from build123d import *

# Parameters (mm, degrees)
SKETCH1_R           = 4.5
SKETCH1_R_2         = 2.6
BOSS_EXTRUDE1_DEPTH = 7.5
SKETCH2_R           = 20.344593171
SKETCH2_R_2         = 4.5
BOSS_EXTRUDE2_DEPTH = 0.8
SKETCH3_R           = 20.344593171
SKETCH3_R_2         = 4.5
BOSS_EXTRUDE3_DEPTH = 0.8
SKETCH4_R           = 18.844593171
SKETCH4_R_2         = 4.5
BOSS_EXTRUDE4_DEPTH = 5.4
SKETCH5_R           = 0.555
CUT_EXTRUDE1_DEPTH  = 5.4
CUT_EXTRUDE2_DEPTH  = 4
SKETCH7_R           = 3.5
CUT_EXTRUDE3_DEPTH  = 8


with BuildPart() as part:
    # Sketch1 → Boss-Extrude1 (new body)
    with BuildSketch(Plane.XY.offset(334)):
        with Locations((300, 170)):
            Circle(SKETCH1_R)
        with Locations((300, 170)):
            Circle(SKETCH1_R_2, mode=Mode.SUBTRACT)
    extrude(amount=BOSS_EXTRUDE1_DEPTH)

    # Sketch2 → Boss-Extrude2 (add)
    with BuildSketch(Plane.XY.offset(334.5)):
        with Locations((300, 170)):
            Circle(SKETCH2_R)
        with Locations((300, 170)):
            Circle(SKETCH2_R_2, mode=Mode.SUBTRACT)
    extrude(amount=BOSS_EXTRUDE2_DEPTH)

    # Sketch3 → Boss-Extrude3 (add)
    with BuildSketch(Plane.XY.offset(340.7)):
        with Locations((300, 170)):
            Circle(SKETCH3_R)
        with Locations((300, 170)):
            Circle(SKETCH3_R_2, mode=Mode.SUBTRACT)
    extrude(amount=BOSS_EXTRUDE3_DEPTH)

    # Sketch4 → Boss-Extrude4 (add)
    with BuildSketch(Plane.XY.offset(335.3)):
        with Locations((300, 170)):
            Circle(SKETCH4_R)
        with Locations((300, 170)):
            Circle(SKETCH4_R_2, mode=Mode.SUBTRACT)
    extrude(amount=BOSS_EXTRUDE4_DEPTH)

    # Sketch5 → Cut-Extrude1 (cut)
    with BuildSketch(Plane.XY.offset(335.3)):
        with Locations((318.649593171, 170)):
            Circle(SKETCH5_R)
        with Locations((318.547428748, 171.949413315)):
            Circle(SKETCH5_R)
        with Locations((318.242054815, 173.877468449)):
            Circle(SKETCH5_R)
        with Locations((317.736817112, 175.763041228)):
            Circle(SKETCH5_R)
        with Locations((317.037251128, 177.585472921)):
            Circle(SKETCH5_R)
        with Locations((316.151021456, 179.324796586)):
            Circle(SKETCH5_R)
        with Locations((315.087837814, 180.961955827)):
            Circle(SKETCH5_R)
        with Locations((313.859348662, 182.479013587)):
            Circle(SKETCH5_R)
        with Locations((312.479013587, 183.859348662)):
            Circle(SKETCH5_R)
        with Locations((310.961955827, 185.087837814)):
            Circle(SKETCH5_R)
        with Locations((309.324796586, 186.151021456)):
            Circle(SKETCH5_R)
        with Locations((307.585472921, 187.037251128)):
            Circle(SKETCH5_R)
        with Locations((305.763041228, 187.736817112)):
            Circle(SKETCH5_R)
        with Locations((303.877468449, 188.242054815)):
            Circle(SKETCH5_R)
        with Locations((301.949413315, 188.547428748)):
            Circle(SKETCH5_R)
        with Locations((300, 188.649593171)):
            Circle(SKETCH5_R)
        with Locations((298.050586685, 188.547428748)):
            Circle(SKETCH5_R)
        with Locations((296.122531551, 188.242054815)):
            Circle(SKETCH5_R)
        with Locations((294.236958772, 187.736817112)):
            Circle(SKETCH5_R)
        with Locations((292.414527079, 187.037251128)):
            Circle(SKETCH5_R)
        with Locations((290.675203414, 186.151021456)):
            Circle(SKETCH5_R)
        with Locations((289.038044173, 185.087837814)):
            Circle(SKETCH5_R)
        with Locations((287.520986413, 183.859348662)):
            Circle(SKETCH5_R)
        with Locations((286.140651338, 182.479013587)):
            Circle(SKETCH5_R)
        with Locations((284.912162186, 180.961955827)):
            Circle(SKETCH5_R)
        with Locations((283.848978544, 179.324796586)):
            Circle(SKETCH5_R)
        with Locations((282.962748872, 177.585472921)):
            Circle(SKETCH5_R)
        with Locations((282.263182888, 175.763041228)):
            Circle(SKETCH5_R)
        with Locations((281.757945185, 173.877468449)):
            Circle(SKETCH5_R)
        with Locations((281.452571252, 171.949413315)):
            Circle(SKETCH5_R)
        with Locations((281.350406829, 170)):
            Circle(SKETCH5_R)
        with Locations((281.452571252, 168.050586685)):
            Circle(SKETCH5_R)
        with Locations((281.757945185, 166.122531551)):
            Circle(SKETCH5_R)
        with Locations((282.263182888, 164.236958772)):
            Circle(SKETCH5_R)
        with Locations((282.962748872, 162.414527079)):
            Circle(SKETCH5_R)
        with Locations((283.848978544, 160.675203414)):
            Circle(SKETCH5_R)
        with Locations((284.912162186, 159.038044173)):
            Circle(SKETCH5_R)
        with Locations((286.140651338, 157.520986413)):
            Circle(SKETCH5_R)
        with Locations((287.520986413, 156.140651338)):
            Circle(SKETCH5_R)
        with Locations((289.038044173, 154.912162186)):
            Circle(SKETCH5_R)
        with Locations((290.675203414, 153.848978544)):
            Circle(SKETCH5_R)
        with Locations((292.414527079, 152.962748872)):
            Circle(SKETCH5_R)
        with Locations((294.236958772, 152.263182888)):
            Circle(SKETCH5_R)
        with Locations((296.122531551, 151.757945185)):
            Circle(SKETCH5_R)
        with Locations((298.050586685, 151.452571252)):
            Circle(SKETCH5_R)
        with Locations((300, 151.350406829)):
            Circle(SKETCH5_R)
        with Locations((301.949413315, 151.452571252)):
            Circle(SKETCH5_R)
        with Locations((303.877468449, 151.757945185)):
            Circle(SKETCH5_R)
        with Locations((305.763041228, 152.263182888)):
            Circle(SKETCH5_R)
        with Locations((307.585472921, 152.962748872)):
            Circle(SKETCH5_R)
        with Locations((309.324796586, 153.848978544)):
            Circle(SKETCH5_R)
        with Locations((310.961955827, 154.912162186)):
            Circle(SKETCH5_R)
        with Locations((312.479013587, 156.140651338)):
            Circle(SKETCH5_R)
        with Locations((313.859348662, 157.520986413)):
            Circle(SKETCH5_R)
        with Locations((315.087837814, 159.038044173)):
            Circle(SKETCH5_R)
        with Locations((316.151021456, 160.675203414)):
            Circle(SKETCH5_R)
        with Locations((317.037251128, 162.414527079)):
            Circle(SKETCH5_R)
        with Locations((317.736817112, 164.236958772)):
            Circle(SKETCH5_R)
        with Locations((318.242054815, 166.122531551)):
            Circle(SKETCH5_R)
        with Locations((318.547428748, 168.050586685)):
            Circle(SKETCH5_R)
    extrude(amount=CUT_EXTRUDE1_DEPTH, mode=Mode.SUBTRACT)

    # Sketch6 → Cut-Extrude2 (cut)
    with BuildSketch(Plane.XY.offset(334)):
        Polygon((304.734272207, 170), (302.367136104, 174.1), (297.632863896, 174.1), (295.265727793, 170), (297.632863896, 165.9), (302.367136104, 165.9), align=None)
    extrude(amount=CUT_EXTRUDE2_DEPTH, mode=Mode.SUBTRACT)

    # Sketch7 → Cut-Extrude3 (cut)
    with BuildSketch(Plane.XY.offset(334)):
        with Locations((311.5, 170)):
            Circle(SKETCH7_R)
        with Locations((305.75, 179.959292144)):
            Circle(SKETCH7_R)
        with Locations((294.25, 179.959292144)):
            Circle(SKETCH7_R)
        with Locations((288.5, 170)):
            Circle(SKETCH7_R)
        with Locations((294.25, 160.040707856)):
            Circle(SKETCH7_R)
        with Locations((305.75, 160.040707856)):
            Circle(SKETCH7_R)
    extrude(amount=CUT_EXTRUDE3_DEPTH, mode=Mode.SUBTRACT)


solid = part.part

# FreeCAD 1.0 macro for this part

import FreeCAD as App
import Part
import Sketcher

V = App.Vector
Q = App.Units.Quantity

doc = App.newDocument("Part")
body = doc.addObject("PartDesign::Body", "Body")

sketch1 = doc.addObject("Sketcher::SketchObject", "Sketch")
body.addObject(sketch1)
sketch1.AttachmentSupport = (doc.XY_Plane, [""])
sketch1.MapMode = "FlatFace"
sketch1.AttachmentOffset = App.Placement(V(0, 0, 334), App.Rotation())
sketch1.addGeometry([
    Part.Circle(V(300, 170, 0), V(0, 0, 1), 4.5),
    Part.Circle(V(300, 170, 0), V(0, 0, 1), 2.6),
], False)
sketch1.addConstraint([
    Sketcher.Constraint("Coincident", 1, 3, 0, 3),
    Sketcher.Constraint("Diameter", 0, Q("9 mm")),
    Sketcher.Constraint("Diameter", 1, Q("5.2 mm")),
    Sketcher.Constraint("DistanceX", -1, 1, 0, 3, Q("300 mm")),
    Sketcher.Constraint("DistanceY", -1, 1, 0, 3, Q("170 mm")),
])
pad1 = doc.addObject("PartDesign::Pad", "Pad")
body.addObject(pad1)
pad1.Profile = sketch1
pad1.Length = 7.5

sketch2 = doc.addObject("Sketcher::SketchObject", "Sketch001")
body.addObject(sketch2)
sketch2.AttachmentSupport = (doc.XY_Plane, [""])
sketch2.MapMode = "FlatFace"
sketch2.AttachmentOffset = App.Placement(V(0, 0, 334.5), App.Rotation())
sketch2.addGeometry([
    Part.Circle(V(300, 170, 0), V(0, 0, 1), 20.3),
    Part.Circle(V(300, 170, 0), V(0, 0, 1), 4.5),
], False)
sketch2.addConstraint([
    Sketcher.Constraint("Coincident", 1, 3, 0, 3),
    Sketcher.Constraint("Diameter", 1, Q("9 mm")),
    Sketcher.Constraint("DistanceX", -1, 1, 0, 3, Q("300 mm")),
    Sketcher.Constraint("DistanceY", -1, 1, 0, 3, Q("170 mm")),
    Sketcher.Constraint("Diameter", 0, Q("40.689186 mm")),
])
pad2 = doc.addObject("PartDesign::Pad", "Pad001")
body.addObject(pad2)
pad2.Profile = sketch2
pad2.Length = 0.8

sketch3 = doc.addObject("Sketcher::SketchObject", "Sketch002")
body.addObject(sketch3)
sketch3.AttachmentSupport = (doc.XY_Plane, [""])
sketch3.MapMode = "FlatFace"
sketch3.AttachmentOffset = App.Placement(V(0, 0, 340.7), App.Rotation())
sketch3.addGeometry([
    Part.Circle(V(300, 170, 0), V(0, 0, 1), 20.3),
    Part.Circle(V(300, 170, 0), V(0, 0, 1), 4.5),
], False)
sketch3.addConstraint([
    Sketcher.Constraint("Coincident", 1, 3, 0, 3),
    Sketcher.Constraint("Diameter", 1, Q("9 mm")),
    Sketcher.Constraint("DistanceX", -1, 1, 0, 3, Q("300 mm")),
    Sketcher.Constraint("DistanceY", -1, 1, 0, 3, Q("170 mm")),
    Sketcher.Constraint("Diameter", 0, Q("40.689186 mm")),
])
pad3 = doc.addObject("PartDesign::Pad", "Pad002")
body.addObject(pad3)
pad3.Profile = sketch3
pad3.Length = 0.8

sketch4 = doc.addObject("Sketcher::SketchObject", "Sketch003")
body.addObject(sketch4)
sketch4.AttachmentSupport = (doc.XY_Plane, [""])
sketch4.MapMode = "FlatFace"
sketch4.AttachmentOffset = App.Placement(V(0, 0, 335.3), App.Rotation())
sketch4.addGeometry([
    Part.Circle(V(300, 170, 0), V(0, 0, 1), 18.8),
    Part.Circle(V(300, 170, 0), V(0, 0, 1), 4.5),
], False)
sketch4.addConstraint([
    Sketcher.Constraint("Coincident", 1, 3, 0, 3),
    Sketcher.Constraint("Diameter", 1, Q("9 mm")),
    Sketcher.Constraint("DistanceX", -1, 1, 0, 3, Q("300 mm")),
    Sketcher.Constraint("DistanceY", -1, 1, 0, 3, Q("170 mm")),
    Sketcher.Constraint("Diameter", 0, Q("37.689186 mm")),
])
pad4 = doc.addObject("PartDesign::Pad", "Pad003")
body.addObject(pad4)
pad4.Profile = sketch4
pad4.Length = 5.4

sketch5 = doc.addObject("Sketcher::SketchObject", "Sketch004")
body.addObject(sketch5)
sketch5.AttachmentSupport = (doc.XY_Plane, [""])
sketch5.MapMode = "FlatFace"
sketch5.AttachmentOffset = App.Placement(V(0, 0, 335.3), App.Rotation())
sketch5.addGeometry([
    Part.Circle(V(318.6, 170, 0), V(0, 0, 1), 0.6),
    Part.Circle(V(318.5, 171.9, 0), V(0, 0, 1), 0.6),
    Part.Circle(V(318.2, 173.9, 0), V(0, 0, 1), 0.6),
    Part.Circle(V(317.7, 175.8, 0), V(0, 0, 1), 0.6),
    Part.Circle(V(317, 177.6, 0), V(0, 0, 1), 0.6),
    Part.Circle(V(316.2, 179.3, 0), V(0, 0, 1), 0.6),
    Part.Circle(V(315.1, 181, 0), V(0, 0, 1), 0.6),
    Part.Circle(V(313.9, 182.5, 0), V(0, 0, 1), 0.6),
    Part.Circle(V(312.5, 183.9, 0), V(0, 0, 1), 0.6),
    Part.Circle(V(311, 185.1, 0), V(0, 0, 1), 0.6),
    Part.Circle(V(309.3, 186.2, 0), V(0, 0, 1), 0.6),
    Part.Circle(V(307.6, 187, 0), V(0, 0, 1), 0.6),
    Part.Circle(V(305.8, 187.7, 0), V(0, 0, 1), 0.6),
    Part.Circle(V(303.9, 188.2, 0), V(0, 0, 1), 0.6),
    Part.Circle(V(301.9, 188.5, 0), V(0, 0, 1), 0.6),
    Part.Circle(V(300, 188.6, 0), V(0, 0, 1), 0.6),
    Part.Circle(V(298.1, 188.5, 0), V(0, 0, 1), 0.6),
    Part.Circle(V(296.1, 188.2, 0), V(0, 0, 1), 0.6),
    Part.Circle(V(294.2, 187.7, 0), V(0, 0, 1), 0.6),
    Part.Circle(V(292.4, 187, 0), V(0, 0, 1), 0.6),
    Part.Circle(V(290.7, 186.2, 0), V(0, 0, 1), 0.6),
    Part.Circle(V(289, 185.1, 0), V(0, 0, 1), 0.6),
    Part.Circle(V(287.5, 183.9, 0), V(0, 0, 1), 0.6),
    Part.Circle(V(286.1, 182.5, 0), V(0, 0, 1), 0.6),
    Part.Circle(V(284.9, 181, 0), V(0, 0, 1), 0.6),
    Part.Circle(V(283.8, 179.3, 0), V(0, 0, 1), 0.6),
    Part.Circle(V(283, 177.6, 0), V(0, 0, 1), 0.6),
    Part.Circle(V(282.3, 175.8, 0), V(0, 0, 1), 0.6),
    Part.Circle(V(281.8, 173.9, 0), V(0, 0, 1), 0.6),
    Part.Circle(V(281.5, 171.9, 0), V(0, 0, 1), 0.6),
    Part.Circle(V(281.4, 170, 0), V(0, 0, 1), 0.6),
    Part.Circle(V(281.5, 168.1, 0), V(0, 0, 1), 0.6),
    Part.Circle(V(281.8, 166.1, 0), V(0, 0, 1), 0.6),
    Part.Circle(V(282.3, 164.2, 0), V(0, 0, 1), 0.6),
    Part.Circle(V(283, 162.4, 0), V(0, 0, 1), 0.6),
    Part.Circle(V(283.8, 160.7, 0), V(0, 0, 1), 0.6),
    Part.Circle(V(284.9, 159, 0), V(0, 0, 1), 0.6),
    Part.Circle(V(286.1, 157.5, 0), V(0, 0, 1), 0.6),
    Part.Circle(V(287.5, 156.1, 0), V(0, 0, 1), 0.6),
    Part.Circle(V(289, 154.9, 0), V(0, 0, 1), 0.6),
    Part.Circle(V(290.7, 153.8, 0), V(0, 0, 1), 0.6),
    Part.Circle(V(292.4, 153, 0), V(0, 0, 1), 0.6),
    Part.Circle(V(294.2, 152.3, 0), V(0, 0, 1), 0.6),
    Part.Circle(V(296.1, 151.8, 0), V(0, 0, 1), 0.6),
    Part.Circle(V(298.1, 151.5, 0), V(0, 0, 1), 0.6),
    Part.Circle(V(300, 151.4, 0), V(0, 0, 1), 0.6),
    Part.Circle(V(301.9, 151.5, 0), V(0, 0, 1), 0.6),
    Part.Circle(V(303.9, 151.8, 0), V(0, 0, 1), 0.6),
    Part.Circle(V(305.8, 152.3, 0), V(0, 0, 1), 0.6),
    Part.Circle(V(307.6, 153, 0), V(0, 0, 1), 0.6),
    Part.Circle(V(309.3, 153.8, 0), V(0, 0, 1), 0.6),
    Part.Circle(V(311, 154.9, 0), V(0, 0, 1), 0.6),
    Part.Circle(V(312.5, 156.1, 0), V(0, 0, 1), 0.6),
    Part.Circle(V(313.9, 157.5, 0), V(0, 0, 1), 0.6),
    Part.Circle(V(315.1, 159, 0), V(0, 0, 1), 0.6),
    Part.Circle(V(316.2, 160.7, 0), V(0, 0, 1), 0.6),
    Part.Circle(V(317, 162.4, 0), V(0, 0, 1), 0.6),
    Part.Circle(V(317.7, 164.2, 0), V(0, 0, 1), 0.6),
    Part.Circle(V(318.2, 166.1, 0), V(0, 0, 1), 0.6),
    Part.Circle(V(318.5, 168.1, 0), V(0, 0, 1), 0.6),
], False)
sketch5.addConstraint([
    Sketcher.Constraint("Equal", 0, 1),
    Sketcher.Constraint("Equal", 1, 2),
    Sketcher.Constraint("Equal", 2, 3),
    Sketcher.Constraint("Equal", 3, 4),
    Sketcher.Constraint("Equal", 4, 5),
    Sketcher.Constraint("Equal", 5, 6),
    Sketcher.Constraint("Equal", 6, 7),
    Sketcher.Constraint("Equal", 7, 8),
    Sketcher.Constraint("Equal", 8, 9),
    Sketcher.Constraint("Equal", 9, 10),
    Sketcher.Constraint("Equal", 10, 11),
    Sketcher.Constraint("Equal", 11, 12),
    Sketcher.Constraint("Equal", 12, 13),
    Sketcher.Constraint("Equal", 13, 14),
    Sketcher.Constraint("Equal", 14, 15),
    Sketcher.Constraint("Equal", 15, 16),
    Sketcher.Constraint("Equal", 16, 17),
    Sketcher.Constraint("Equal", 17, 18),
    Sketcher.Constraint("Equal", 18, 19),
    Sketcher.Constraint("Equal", 19, 20),
    Sketcher.Constraint("Equal", 20, 21),
    Sketcher.Constraint("Equal", 21, 22),
    Sketcher.Constraint("Equal", 22, 23),
    Sketcher.Constraint("Equal", 23, 24),
    Sketcher.Constraint("Equal", 24, 25),
    Sketcher.Constraint("Equal", 25, 26),
    Sketcher.Constraint("Equal", 26, 27),
    Sketcher.Constraint("Equal", 27, 28),
    Sketcher.Constraint("Equal", 28, 29),
    Sketcher.Constraint("Equal", 29, 30),
    Sketcher.Constraint("Equal", 30, 31),
    Sketcher.Constraint("Equal", 31, 32),
    Sketcher.Constraint("Equal", 32, 33),
    Sketcher.Constraint("Equal", 33, 34),
    Sketcher.Constraint("Equal", 34, 35),
    Sketcher.Constraint("Equal", 35, 36),
    Sketcher.Constraint("Equal", 36, 37),
    Sketcher.Constraint("Equal", 37, 38),
    Sketcher.Constraint("Equal", 38, 39),
    Sketcher.Constraint("Equal", 39, 40),
    Sketcher.Constraint("Equal", 40, 41),
    Sketcher.Constraint("Equal", 41, 42),
    Sketcher.Constraint("Equal", 42, 43),
    Sketcher.Constraint("Equal", 43, 44),
    Sketcher.Constraint("Equal", 44, 45),
    Sketcher.Constraint("Equal", 45, 46),
    Sketcher.Constraint("Equal", 46, 47),
    Sketcher.Constraint("Equal", 47, 48),
    Sketcher.Constraint("Equal", 48, 49),
    Sketcher.Constraint("Equal", 49, 50),
    Sketcher.Constraint("Equal", 50, 51),
    Sketcher.Constraint("Equal", 51, 52),
    Sketcher.Constraint("Equal", 52, 53),
    Sketcher.Constraint("Equal", 53, 54),
    Sketcher.Constraint("Equal", 54, 55),
    Sketcher.Constraint("Equal", 55, 56),
    Sketcher.Constraint("Equal", 56, 57),
    Sketcher.Constraint("Equal", 57, 58),
    Sketcher.Constraint("Equal", 58, 59),
    Sketcher.Constraint("Horizontal", 14, 3, 16, 3),
    Sketcher.Constraint("Horizontal", 13, 3, 17, 3),
    Sketcher.Constraint("Horizontal", 12, 3, 18, 3),
    Sketcher.Constraint("Horizontal", 11, 3, 19, 3),
    Sketcher.Constraint("Horizontal", 10, 3, 20, 3),
    Sketcher.Constraint("Horizontal", 9, 3, 21, 3),
    Sketcher.Constraint("Horizontal", 8, 3, 22, 3),
    Sketcher.Constraint("Horizontal", 7, 3, 23, 3),
    Sketcher.Constraint("Horizontal", 6, 3, 24, 3),
    Sketcher.Constraint("Horizontal", 5, 3, 25, 3),
    Sketcher.Constraint("Horizontal", 4, 3, 26, 3),
    Sketcher.Constraint("Horizontal", 3, 3, 27, 3),
    Sketcher.Constraint("Horizontal", 2, 3, 28, 3),
    Sketcher.Constraint("Horizontal", 1, 3, 29, 3),
    Sketcher.Constraint("Horizontal", 0, 3, 30, 3),
    Sketcher.Constraint("Horizontal", 44, 3, 46, 3),
    Sketcher.Constraint("Horizontal", 43, 3, 47, 3),
    Sketcher.Constraint("Horizontal", 42, 3, 48, 3),
    Sketcher.Constraint("Horizontal", 41, 3, 49, 3),
    Sketcher.Constraint("Horizontal", 40, 3, 50, 3),
    Sketcher.Constraint("Horizontal", 39, 3, 51, 3),
    Sketcher.Constraint("Horizontal", 38, 3, 52, 3),
    Sketcher.Constraint("Horizontal", 37, 3, 53, 3),
    Sketcher.Constraint("Horizontal", 36, 3, 54, 3),
    Sketcher.Constraint("Horizontal", 35, 3, 55, 3),
    Sketcher.Constraint("Horizontal", 34, 3, 56, 3),
    Sketcher.Constraint("Horizontal", 33, 3, 57, 3),
    Sketcher.Constraint("Horizontal", 32, 3, 58, 3),
    Sketcher.Constraint("Horizontal", 31, 3, 59, 3),
    Sketcher.Constraint("Vertical", 29, 3, 31, 3),
    Sketcher.Constraint("Vertical", 28, 3, 32, 3),
    Sketcher.Constraint("Vertical", 27, 3, 33, 3),
    Sketcher.Constraint("Vertical", 26, 3, 34, 3),
    Sketcher.Constraint("Vertical", 25, 3, 35, 3),
    Sketcher.Constraint("Vertical", 24, 3, 36, 3),
    Sketcher.Constraint("Vertical", 23, 3, 37, 3),
    Sketcher.Constraint("Vertical", 22, 3, 38, 3),
    Sketcher.Constraint("Vertical", 21, 3, 39, 3),
    Sketcher.Constraint("Vertical", 20, 3, 40, 3),
    Sketcher.Constraint("Vertical", 19, 3, 41, 3),
    Sketcher.Constraint("Vertical", 18, 3, 42, 3),
    Sketcher.Constraint("Vertical", 17, 3, 43, 3),
    Sketcher.Constraint("Vertical", 16, 3, 44, 3),
    Sketcher.Constraint("Vertical", 15, 3, 45, 3),
    Sketcher.Constraint("Vertical", 14, 3, 46, 3),
    Sketcher.Constraint("Vertical", 13, 3, 47, 3),
    Sketcher.Constraint("Vertical", 12, 3, 48, 3),
    Sketcher.Constraint("Vertical", 11, 3, 49, 3),
    Sketcher.Constraint("Vertical", 10, 3, 50, 3),
    Sketcher.Constraint("Vertical", 9, 3, 51, 3),
    Sketcher.Constraint("Vertical", 8, 3, 52, 3),
    Sketcher.Constraint("Vertical", 7, 3, 53, 3),
    Sketcher.Constraint("Vertical", 6, 3, 54, 3),
    Sketcher.Constraint("Vertical", 5, 3, 55, 3),
    Sketcher.Constraint("Vertical", 4, 3, 56, 3),
    Sketcher.Constraint("Vertical", 3, 3, 57, 3),
    Sketcher.Constraint("Vertical", 2, 3, 58, 3),
    Sketcher.Constraint("Vertical", 1, 3, 59, 3),
    Sketcher.Constraint("Diameter", 0, Q("1.11 mm")),
    Sketcher.Constraint("DistanceY", -1, 1, 0, 3, Q("170 mm")),
    Sketcher.Constraint("DistanceX", -1, 1, 15, 3, Q("300 mm")),
    Sketcher.Constraint("DistanceX", -1, 1, 1, 3, Q("318.547429 mm")),
    Sketcher.Constraint("DistanceY", -1, 1, 2, 3, Q("173.877468 mm")),
    Sketcher.Constraint("DistanceY", -1, 1, 3, 3, Q("175.763041 mm")),
    Sketcher.Constraint("DistanceX", -1, 1, 4, 3, Q("317.037251 mm")),
    Sketcher.Constraint("DistanceX", -1, 1, 5, 3, Q("316.151021 mm")),
    Sketcher.Constraint("DistanceX", -1, 1, 7, 3, Q("313.859349 mm")),
    Sketcher.Constraint("DistanceY", -1, 1, 8, 3, Q("183.859349 mm")),
    Sketcher.Constraint("DistanceY", -1, 1, 10, 3, Q("186.151021 mm")),
    Sketcher.Constraint("DistanceY", -1, 1, 11, 3, Q("187.037251 mm")),
    Sketcher.Constraint("DistanceX", -1, 1, 12, 3, Q("305.763041 mm")),
    Sketcher.Constraint("DistanceX", -1, 1, 13, 3, Q("303.877468 mm")),
    Sketcher.Constraint("DistanceY", -1, 1, 14, 3, Q("188.547429 mm")),
    Sketcher.Constraint("DistanceX", -1, 1, 17, 3, Q("296.122532 mm")),
    Sketcher.Constraint("DistanceX", -1, 1, 18, 3, Q("294.236959 mm")),
    Sketcher.Constraint("DistanceX", -1, 1, 23, 3, Q("286.140651 mm")),
    Sketcher.Constraint("DistanceX", -1, 1, 25, 3, Q("283.848979 mm")),
    Sketcher.Constraint("DistanceX", -1, 1, 26, 3, Q("282.962749 mm")),
    Sketcher.Constraint("DistanceX", -1, 1, 29, 3, Q("281.452571 mm")),
    Sketcher.Constraint("DistanceY", -1, 1, 32, 3, Q("166.122532 mm")),
    Sketcher.Constraint("DistanceY", -1, 1, 33, 3, Q("164.236959 mm")),
    Sketcher.Constraint("DistanceY", -1, 1, 38, 3, Q("156.140651 mm")),
    Sketcher.Constraint("DistanceY", -1, 1, 40, 3, Q("153.848979 mm")),
    Sketcher.Constraint("DistanceY", -1, 1, 41, 3, Q("152.962749 mm")),
    Sketcher.Constraint("DistanceY", -1, 1, 44, 3, Q("151.452571 mm")),
    Sketcher.Constraint("DistanceX", 2, 3, 0, 3, Q("0.407538 mm")),
    Sketcher.Constraint("DistanceX", 3, 3, 1, 3, Q("0.810612 mm")),
    Sketcher.Constraint("DistanceY", 3, 3, 4, 3, Q("1.822432 mm")),
    Sketcher.Constraint("DistanceY", 1, 3, 4, 3, Q("5.63606 mm")),
    Sketcher.Constraint("DistanceY", 2, 3, 5, 3, Q("5.447328 mm")),
    Sketcher.Constraint("DistanceX", 5, 3, 0, 3, Q("2.498572 mm")),
    Sketcher.Constraint("DistanceY", 5, 3, 6, 3, Q("1.637159 mm")),
    Sketcher.Constraint("DistanceX", 6, 3, 3, 3, Q("2.648979 mm")),
    Sketcher.Constraint("DistanceY", 4, 3, 7, 3, Q("4.893541 mm")),
    Sketcher.Constraint("DistanceY", 8, 3, 9, 3, Q("1.228489 mm")),
    Sketcher.Constraint("DistanceX", 9, 3, 6, 3, Q("4.125882 mm")),
    Sketcher.Constraint("DistanceX", 10, 3, 9, 3, Q("1.637159 mm")),
    Sketcher.Constraint("DistanceX", 11, 3, 8, 3, Q("4.893541 mm")),
    Sketcher.Constraint("DistanceX", 12, 3, 11, 3, Q("1.822432 mm")),
    Sketcher.Constraint("DistanceY", 9, 3, 12, 3, Q("2.648979 mm")),
    Sketcher.Constraint("DistanceX", 14, 3, 11, 3, Q("5.63606 mm")),
    Sketcher.Constraint("DistanceY", 13, 3, 15, 3, Q("0.407538 mm")),
    Sketcher.Constraint("DistanceY", 10, 3, 15, 3, Q("2.498572 mm")),
    Sketcher.Constraint("DistanceX", 16, 3, 13, 3, Q("5.826882 mm")),
    Sketcher.Constraint("DistanceX", 19, 3, 18, 3, Q("1.822432 mm")),
    Sketcher.Constraint("DistanceX", 20, 3, 17, 3, Q("5.447328 mm")),
    Sketcher.Constraint("DistanceX", 21, 3, 20, 3, Q("1.637159 mm")),
    Sketcher.Constraint("DistanceX", 22, 3, 19, 3, Q("4.893541 mm")),
    Sketcher.Constraint("DistanceX", 24, 3, 23, 3, Q("1.228489 mm")),
    Sketcher.Constraint("DistanceX", 27, 3, 24, 3, Q("2.648979 mm")),
    Sketcher.Constraint("DistanceX", 30, 3, 28, 3, Q("0.407538 mm")),
    Sketcher.Constraint("DistanceX", 30, 3, 25, 3, Q("2.498572 mm")),
    Sketcher.Constraint("DistanceY", 31, 3, 28, 3, Q("5.826882 mm")),
    Sketcher.Constraint("DistanceY", 34, 3, 33, 3, Q("1.822432 mm")),
    Sketcher.Constraint("DistanceY", 35, 3, 32, 3, Q("5.447328 mm")),
    Sketcher.Constraint("DistanceY", 36, 3, 35, 3, Q("1.637159 mm")),
    Sketcher.Constraint("DistanceY", 37, 3, 34, 3, Q("4.893541 mm")),
    Sketcher.Constraint("DistanceY", 39, 3, 38, 3, Q("1.228489 mm")),
    Sketcher.Constraint("DistanceY", 42, 3, 39, 3, Q("2.648979 mm")),
    Sketcher.Constraint("DistanceY", 45, 3, 43, 3, Q("0.407538 mm")),
    Sketcher.Constraint("DistanceY", 45, 3, 40, 3, Q("2.498572 mm")),
])
pocket1 = doc.addObject("PartDesign::Pocket", "Pocket")
body.addObject(pocket1)
pocket1.Profile = sketch5
pocket1.Length = 5.4
pocket1.Reversed = True

sketch6 = doc.addObject("Sketcher::SketchObject", "Sketch005")
body.addObject(sketch6)
sketch6.AttachmentSupport = (doc.XY_Plane, [""])
sketch6.MapMode = "FlatFace"
sketch6.AttachmentOffset = App.Placement(V(0, 0, 334), App.Rotation())
sketch6.addGeometry([
    Part.LineSegment(V(304.7, 170, 0), V(302.4, 174.1, 0)),
    Part.LineSegment(V(302.4, 174.1, 0), V(297.6, 174.1, 0)),
    Part.LineSegment(V(297.6, 174.1, 0), V(295.3, 170, 0)),
    Part.LineSegment(V(295.3, 170, 0), V(297.6, 165.9, 0)),
    Part.LineSegment(V(297.6, 165.9, 0), V(302.4, 165.9, 0)),
    Part.LineSegment(V(302.4, 165.9, 0), V(304.7, 170, 0)),
], False)
sketch6.addConstraint([
    Sketcher.Constraint("Coincident", 0, 2, 1, 1),
    Sketcher.Constraint("Coincident", 1, 2, 2, 1),
    Sketcher.Constraint("Coincident", 2, 2, 3, 1),
    Sketcher.Constraint("Coincident", 3, 2, 4, 1),
    Sketcher.Constraint("Coincident", 4, 2, 5, 1),
    Sketcher.Constraint("Coincident", 5, 2, 0, 1),
    Sketcher.Constraint("Horizontal", 1),
    Sketcher.Constraint("Horizontal", 4),
    Sketcher.Constraint("Parallel", 0, 3),
    Sketcher.Constraint("Parallel", 2, 5),
    Sketcher.Constraint("Horizontal", 2, 2, 5, 2),
    Sketcher.Constraint("Vertical", 1, 2, 3, 2),
    Sketcher.Constraint("Vertical", 0, 2, 4, 2),
    Sketcher.Constraint("Angle", 0, Q("120 deg")),
    Sketcher.Constraint("DistanceY", -1, 1, 2, 2, Q("170 mm")),
    Sketcher.Constraint("DistanceY", -1, 1, 0, 2, Q("174.1 mm")),
    Sketcher.Constraint("DistanceX", 1, 2, 1, 1, Q("4.734272 mm")),
    Sketcher.Constraint("DistanceX", -1, 1, 0, 2, Q("302.367136 mm")),
])
pocket2 = doc.addObject("PartDesign::Pocket", "Pocket001")
body.addObject(pocket2)
pocket2.Profile = sketch6
pocket2.Length = 4
pocket2.Reversed = True

sketch7 = doc.addObject("Sketcher::SketchObject", "Sketch006")
body.addObject(sketch7)
sketch7.AttachmentSupport = (doc.XY_Plane, [""])
sketch7.MapMode = "FlatFace"
sketch7.AttachmentOffset = App.Placement(V(0, 0, 334), App.Rotation())
sketch7.addGeometry([
    Part.Circle(V(311.5, 170, 0), V(0, 0, 1), 3.5),
    Part.Circle(V(305.8, 180, 0), V(0, 0, 1), 3.5),
    Part.Circle(V(294.2, 180, 0), V(0, 0, 1), 3.5),
    Part.Circle(V(288.5, 170, 0), V(0, 0, 1), 3.5),
    Part.Circle(V(294.2, 160, 0), V(0, 0, 1), 3.5),
    Part.Circle(V(305.8, 160, 0), V(0, 0, 1), 3.5),
], False)
sketch7.addConstraint([
    Sketcher.Constraint("Equal", 0, 1),
    Sketcher.Constraint("Equal", 1, 2),
    Sketcher.Constraint("Equal", 2, 3),
    Sketcher.Constraint("Equal", 3, 4),
    Sketcher.Constraint("Equal", 4, 5),
    Sketcher.Constraint("Horizontal", 1, 3, 2, 3),
    Sketcher.Constraint("Horizontal", 0, 3, 3, 3),
    Sketcher.Constraint("Horizontal", 4, 3, 5, 3),
    Sketcher.Constraint("Vertical", 2, 3, 4, 3),
    Sketcher.Constraint("Vertical", 1, 3, 5, 3),
    Sketcher.Constraint("Diameter", 0, Q("7 mm")),
    Sketcher.Constraint("DistanceY", -1, 1, 0, 3, Q("170 mm")),
    Sketcher.Constraint("DistanceX", 3, 3, 0, 3, Q("23 mm")),
    Sketcher.Constraint("DistanceX", -1, 1, 0, 3, Q("311.5 mm")),
    Sketcher.Constraint("DistanceX", 2, 3, 1, 3, Q("11.5 mm")),
    Sketcher.Constraint("DistanceX", -1, 1, 1, 3, Q("305.75 mm")),
    Sketcher.Constraint("DistanceY", -1, 1, 1, 3, Q("179.959292 mm")),
    Sketcher.Constraint("DistanceY", -1, 1, 4, 3, Q("160.040708 mm")),
])
pocket3 = doc.addObject("PartDesign::Pocket", "Pocket002")
body.addObject(pocket3)
pocket3.Profile = sketch7
pocket3.Length = 8
pocket3.Reversed = True

doc.recompute()
